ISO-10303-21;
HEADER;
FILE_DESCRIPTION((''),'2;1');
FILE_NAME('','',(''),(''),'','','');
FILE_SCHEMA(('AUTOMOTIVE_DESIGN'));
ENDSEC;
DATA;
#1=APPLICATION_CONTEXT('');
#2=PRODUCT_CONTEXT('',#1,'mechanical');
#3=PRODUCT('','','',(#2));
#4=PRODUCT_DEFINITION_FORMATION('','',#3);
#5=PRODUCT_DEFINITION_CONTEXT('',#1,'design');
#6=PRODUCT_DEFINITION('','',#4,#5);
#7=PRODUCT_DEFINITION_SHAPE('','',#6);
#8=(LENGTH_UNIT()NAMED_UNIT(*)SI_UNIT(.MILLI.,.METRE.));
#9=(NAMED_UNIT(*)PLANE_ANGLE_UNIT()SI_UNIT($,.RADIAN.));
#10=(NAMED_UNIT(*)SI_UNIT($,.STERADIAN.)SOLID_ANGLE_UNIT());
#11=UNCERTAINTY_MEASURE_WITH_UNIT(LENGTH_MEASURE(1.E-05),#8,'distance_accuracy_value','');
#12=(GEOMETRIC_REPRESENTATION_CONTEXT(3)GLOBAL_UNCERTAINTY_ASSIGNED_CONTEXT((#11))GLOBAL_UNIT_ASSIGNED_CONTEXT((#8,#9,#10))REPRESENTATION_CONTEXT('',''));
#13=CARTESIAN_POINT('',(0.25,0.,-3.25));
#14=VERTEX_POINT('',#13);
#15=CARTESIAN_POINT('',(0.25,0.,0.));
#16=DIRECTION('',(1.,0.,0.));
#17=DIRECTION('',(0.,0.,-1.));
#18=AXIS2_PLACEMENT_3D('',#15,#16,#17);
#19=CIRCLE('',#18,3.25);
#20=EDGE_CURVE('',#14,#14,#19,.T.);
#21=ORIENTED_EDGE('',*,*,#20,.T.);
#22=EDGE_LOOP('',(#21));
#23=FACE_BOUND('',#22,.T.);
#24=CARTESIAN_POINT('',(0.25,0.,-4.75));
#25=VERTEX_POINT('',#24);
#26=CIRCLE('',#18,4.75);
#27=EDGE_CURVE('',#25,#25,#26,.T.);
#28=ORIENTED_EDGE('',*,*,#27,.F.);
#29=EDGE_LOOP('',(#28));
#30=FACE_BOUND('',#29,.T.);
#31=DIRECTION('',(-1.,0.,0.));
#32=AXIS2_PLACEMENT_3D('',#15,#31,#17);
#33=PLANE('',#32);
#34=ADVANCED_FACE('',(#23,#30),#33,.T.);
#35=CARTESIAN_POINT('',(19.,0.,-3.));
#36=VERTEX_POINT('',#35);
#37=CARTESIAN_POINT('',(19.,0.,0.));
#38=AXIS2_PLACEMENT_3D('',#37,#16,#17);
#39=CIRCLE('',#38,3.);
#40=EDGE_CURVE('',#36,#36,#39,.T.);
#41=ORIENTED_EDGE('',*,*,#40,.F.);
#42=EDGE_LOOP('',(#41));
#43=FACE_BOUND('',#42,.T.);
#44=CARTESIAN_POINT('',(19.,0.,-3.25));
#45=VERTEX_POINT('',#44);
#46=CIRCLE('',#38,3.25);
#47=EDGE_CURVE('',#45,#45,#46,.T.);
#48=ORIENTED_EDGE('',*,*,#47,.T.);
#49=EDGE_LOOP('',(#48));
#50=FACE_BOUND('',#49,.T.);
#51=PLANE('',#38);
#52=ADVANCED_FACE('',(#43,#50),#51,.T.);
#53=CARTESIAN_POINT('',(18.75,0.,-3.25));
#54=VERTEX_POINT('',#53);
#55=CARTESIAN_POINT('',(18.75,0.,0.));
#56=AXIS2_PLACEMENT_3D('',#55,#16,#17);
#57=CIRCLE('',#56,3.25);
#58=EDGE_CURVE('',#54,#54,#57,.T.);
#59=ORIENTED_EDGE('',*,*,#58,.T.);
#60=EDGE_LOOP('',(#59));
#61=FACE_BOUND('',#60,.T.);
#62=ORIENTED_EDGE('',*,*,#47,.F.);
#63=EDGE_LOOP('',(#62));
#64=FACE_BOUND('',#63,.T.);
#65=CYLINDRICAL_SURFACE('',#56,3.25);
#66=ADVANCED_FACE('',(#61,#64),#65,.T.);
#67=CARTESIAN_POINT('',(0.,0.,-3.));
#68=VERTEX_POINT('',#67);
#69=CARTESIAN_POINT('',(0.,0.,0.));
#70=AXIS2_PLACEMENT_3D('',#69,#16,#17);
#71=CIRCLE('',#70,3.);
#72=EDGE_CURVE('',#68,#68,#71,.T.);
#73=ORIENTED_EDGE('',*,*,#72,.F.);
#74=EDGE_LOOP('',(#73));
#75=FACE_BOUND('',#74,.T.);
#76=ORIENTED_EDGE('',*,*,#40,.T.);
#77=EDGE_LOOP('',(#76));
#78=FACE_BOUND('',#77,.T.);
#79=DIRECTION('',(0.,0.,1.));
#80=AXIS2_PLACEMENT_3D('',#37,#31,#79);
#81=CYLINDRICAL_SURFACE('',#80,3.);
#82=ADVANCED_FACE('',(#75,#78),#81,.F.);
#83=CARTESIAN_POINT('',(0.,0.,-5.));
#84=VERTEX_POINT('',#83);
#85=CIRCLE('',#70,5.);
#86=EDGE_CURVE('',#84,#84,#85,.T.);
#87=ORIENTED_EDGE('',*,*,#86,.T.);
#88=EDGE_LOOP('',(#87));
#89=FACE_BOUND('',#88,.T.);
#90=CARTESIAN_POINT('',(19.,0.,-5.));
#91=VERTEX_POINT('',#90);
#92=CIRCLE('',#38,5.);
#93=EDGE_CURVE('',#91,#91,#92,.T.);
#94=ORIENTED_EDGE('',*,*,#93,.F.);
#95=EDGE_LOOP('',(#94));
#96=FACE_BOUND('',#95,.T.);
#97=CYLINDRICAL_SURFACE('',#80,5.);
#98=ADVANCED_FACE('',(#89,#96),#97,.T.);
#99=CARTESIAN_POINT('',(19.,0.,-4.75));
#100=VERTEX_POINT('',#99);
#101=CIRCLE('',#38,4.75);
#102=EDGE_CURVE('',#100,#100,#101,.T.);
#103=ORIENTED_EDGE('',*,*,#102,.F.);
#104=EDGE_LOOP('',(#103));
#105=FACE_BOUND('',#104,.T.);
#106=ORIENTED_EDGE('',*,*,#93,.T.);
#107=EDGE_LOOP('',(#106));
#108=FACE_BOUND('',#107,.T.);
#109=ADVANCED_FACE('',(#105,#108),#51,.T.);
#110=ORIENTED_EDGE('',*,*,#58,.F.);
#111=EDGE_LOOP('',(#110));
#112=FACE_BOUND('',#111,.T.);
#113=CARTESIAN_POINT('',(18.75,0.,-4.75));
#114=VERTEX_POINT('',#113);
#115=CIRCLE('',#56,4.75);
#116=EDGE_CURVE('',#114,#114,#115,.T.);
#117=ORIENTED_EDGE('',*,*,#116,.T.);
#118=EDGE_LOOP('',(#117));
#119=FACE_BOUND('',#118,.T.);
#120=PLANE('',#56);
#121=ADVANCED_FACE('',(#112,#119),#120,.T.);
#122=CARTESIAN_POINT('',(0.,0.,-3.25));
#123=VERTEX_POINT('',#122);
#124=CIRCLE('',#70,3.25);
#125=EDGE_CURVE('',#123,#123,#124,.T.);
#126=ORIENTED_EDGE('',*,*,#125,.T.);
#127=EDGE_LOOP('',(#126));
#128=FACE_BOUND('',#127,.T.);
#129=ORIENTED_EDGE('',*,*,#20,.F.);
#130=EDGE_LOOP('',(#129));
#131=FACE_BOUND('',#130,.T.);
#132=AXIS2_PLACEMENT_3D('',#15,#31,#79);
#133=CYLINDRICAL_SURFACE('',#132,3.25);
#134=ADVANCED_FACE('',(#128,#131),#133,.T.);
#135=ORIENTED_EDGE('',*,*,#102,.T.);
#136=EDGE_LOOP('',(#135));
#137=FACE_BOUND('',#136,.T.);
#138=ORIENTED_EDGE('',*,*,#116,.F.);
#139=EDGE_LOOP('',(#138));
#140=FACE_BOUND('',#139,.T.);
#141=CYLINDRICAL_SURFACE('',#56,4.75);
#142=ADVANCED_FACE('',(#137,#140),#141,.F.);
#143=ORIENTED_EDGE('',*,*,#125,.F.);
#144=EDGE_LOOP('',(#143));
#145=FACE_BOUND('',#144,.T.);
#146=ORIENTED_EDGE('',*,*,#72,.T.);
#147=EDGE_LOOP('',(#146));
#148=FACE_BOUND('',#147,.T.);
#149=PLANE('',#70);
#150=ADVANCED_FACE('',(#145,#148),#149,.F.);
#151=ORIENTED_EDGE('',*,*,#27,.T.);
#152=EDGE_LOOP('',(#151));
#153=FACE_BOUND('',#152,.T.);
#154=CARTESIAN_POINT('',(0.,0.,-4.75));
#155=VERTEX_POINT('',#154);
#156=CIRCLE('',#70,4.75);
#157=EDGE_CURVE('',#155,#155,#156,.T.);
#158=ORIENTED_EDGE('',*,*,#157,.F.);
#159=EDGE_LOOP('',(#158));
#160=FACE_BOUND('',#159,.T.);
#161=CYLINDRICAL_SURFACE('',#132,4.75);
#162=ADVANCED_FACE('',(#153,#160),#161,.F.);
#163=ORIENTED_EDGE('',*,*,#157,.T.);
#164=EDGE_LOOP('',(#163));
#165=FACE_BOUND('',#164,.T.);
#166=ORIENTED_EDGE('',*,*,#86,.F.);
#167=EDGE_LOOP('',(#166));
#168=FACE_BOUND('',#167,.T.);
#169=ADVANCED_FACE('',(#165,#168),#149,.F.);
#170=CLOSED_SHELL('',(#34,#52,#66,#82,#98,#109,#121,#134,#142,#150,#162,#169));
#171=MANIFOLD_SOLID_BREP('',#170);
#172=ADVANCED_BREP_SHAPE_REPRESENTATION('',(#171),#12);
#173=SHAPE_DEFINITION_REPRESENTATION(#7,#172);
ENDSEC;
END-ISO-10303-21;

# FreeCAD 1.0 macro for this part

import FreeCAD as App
import Part
import Sketcher

V = App.Vector
Q = App.Units.Quantity

doc = App.newDocument("Part")
body = doc.addObject("PartDesign::Body", "Body")

sketch1 = body.newObject("Sketcher::SketchObject", "Sketch")
sketch1.AttachmentSupport = (doc.getObject("YZ_Plane"), [""])
sketch1.MapMode = "FlatFace"
sketch1.addGeometry([
    Part.Circle(V(0, 0, 0), V(0, 0, 1), 5),
    Part.Circle(V(0, 0, 0), V(0, 0, 1), 3),
], False)
sketch1.addConstraint([
    Sketcher.Constraint("Coincident", 0, 3, -1, 1),
    Sketcher.Constraint("Coincident", 1, 3, -1, 1),
    Sketcher.Constraint("Diameter", 0, Q("10 mm")),
    Sketcher.Constraint("Diameter", 1, Q("6 mm")),
])
pad1 = body.newObject("PartDesign::Pad", "Pad")
pad1.Profile = sketch1
pad1.Length = 19

sketch2 = body.newObject("Sketcher::SketchObject", "Sketch001")
sketch2.AttachmentSupport = (doc.getObject("YZ_Plane"), [""])
sketch2.MapMode = "FlatFace"
sketch2.AttachmentOffset = App.Placement(V(0, 0, 19), App.Rotation())
sketch2.addGeometry([
    Part.Circle(V(0, 0, 0), V(0, 0, 1), 4.8),
    Part.Circle(V(0, 0, 0), V(0, 0, 1), 3.2),
], False)
sketch2.addConstraint([
    Sketcher.Constraint("Coincident", 0, 3, -1, 1),
    Sketcher.Constraint("Coincident", 1, 3, -1, 1),
    Sketcher.Constraint("Diameter", 0, Q("9.5 mm")),
    Sketcher.Constraint("Diameter", 1, Q("6.5 mm")),
])
pocket1 = body.newObject("PartDesign::Pocket", "Pocket")
pocket1.Profile = sketch2
pocket1.Length = 0.25
doc.recompute()

datumplane = body.newObject("PartDesign::Plane", "DatumPlane")
datumplane.AttachmentSupport = (doc.getObject("YZ_Plane"), [""])
datumplane.MapMode = "FlatFace"
datumplane.AttachmentOffset = App.Placement(V(0, 0, 9.5), App.Rotation())
mirrored = body.newObject("PartDesign::Mirrored", "Mirrored")
mirrored.Originals = [pocket1]
mirrored.MirrorPlane = (datumplane, [""])
body.Tip = mirrored

doc.recompute()
